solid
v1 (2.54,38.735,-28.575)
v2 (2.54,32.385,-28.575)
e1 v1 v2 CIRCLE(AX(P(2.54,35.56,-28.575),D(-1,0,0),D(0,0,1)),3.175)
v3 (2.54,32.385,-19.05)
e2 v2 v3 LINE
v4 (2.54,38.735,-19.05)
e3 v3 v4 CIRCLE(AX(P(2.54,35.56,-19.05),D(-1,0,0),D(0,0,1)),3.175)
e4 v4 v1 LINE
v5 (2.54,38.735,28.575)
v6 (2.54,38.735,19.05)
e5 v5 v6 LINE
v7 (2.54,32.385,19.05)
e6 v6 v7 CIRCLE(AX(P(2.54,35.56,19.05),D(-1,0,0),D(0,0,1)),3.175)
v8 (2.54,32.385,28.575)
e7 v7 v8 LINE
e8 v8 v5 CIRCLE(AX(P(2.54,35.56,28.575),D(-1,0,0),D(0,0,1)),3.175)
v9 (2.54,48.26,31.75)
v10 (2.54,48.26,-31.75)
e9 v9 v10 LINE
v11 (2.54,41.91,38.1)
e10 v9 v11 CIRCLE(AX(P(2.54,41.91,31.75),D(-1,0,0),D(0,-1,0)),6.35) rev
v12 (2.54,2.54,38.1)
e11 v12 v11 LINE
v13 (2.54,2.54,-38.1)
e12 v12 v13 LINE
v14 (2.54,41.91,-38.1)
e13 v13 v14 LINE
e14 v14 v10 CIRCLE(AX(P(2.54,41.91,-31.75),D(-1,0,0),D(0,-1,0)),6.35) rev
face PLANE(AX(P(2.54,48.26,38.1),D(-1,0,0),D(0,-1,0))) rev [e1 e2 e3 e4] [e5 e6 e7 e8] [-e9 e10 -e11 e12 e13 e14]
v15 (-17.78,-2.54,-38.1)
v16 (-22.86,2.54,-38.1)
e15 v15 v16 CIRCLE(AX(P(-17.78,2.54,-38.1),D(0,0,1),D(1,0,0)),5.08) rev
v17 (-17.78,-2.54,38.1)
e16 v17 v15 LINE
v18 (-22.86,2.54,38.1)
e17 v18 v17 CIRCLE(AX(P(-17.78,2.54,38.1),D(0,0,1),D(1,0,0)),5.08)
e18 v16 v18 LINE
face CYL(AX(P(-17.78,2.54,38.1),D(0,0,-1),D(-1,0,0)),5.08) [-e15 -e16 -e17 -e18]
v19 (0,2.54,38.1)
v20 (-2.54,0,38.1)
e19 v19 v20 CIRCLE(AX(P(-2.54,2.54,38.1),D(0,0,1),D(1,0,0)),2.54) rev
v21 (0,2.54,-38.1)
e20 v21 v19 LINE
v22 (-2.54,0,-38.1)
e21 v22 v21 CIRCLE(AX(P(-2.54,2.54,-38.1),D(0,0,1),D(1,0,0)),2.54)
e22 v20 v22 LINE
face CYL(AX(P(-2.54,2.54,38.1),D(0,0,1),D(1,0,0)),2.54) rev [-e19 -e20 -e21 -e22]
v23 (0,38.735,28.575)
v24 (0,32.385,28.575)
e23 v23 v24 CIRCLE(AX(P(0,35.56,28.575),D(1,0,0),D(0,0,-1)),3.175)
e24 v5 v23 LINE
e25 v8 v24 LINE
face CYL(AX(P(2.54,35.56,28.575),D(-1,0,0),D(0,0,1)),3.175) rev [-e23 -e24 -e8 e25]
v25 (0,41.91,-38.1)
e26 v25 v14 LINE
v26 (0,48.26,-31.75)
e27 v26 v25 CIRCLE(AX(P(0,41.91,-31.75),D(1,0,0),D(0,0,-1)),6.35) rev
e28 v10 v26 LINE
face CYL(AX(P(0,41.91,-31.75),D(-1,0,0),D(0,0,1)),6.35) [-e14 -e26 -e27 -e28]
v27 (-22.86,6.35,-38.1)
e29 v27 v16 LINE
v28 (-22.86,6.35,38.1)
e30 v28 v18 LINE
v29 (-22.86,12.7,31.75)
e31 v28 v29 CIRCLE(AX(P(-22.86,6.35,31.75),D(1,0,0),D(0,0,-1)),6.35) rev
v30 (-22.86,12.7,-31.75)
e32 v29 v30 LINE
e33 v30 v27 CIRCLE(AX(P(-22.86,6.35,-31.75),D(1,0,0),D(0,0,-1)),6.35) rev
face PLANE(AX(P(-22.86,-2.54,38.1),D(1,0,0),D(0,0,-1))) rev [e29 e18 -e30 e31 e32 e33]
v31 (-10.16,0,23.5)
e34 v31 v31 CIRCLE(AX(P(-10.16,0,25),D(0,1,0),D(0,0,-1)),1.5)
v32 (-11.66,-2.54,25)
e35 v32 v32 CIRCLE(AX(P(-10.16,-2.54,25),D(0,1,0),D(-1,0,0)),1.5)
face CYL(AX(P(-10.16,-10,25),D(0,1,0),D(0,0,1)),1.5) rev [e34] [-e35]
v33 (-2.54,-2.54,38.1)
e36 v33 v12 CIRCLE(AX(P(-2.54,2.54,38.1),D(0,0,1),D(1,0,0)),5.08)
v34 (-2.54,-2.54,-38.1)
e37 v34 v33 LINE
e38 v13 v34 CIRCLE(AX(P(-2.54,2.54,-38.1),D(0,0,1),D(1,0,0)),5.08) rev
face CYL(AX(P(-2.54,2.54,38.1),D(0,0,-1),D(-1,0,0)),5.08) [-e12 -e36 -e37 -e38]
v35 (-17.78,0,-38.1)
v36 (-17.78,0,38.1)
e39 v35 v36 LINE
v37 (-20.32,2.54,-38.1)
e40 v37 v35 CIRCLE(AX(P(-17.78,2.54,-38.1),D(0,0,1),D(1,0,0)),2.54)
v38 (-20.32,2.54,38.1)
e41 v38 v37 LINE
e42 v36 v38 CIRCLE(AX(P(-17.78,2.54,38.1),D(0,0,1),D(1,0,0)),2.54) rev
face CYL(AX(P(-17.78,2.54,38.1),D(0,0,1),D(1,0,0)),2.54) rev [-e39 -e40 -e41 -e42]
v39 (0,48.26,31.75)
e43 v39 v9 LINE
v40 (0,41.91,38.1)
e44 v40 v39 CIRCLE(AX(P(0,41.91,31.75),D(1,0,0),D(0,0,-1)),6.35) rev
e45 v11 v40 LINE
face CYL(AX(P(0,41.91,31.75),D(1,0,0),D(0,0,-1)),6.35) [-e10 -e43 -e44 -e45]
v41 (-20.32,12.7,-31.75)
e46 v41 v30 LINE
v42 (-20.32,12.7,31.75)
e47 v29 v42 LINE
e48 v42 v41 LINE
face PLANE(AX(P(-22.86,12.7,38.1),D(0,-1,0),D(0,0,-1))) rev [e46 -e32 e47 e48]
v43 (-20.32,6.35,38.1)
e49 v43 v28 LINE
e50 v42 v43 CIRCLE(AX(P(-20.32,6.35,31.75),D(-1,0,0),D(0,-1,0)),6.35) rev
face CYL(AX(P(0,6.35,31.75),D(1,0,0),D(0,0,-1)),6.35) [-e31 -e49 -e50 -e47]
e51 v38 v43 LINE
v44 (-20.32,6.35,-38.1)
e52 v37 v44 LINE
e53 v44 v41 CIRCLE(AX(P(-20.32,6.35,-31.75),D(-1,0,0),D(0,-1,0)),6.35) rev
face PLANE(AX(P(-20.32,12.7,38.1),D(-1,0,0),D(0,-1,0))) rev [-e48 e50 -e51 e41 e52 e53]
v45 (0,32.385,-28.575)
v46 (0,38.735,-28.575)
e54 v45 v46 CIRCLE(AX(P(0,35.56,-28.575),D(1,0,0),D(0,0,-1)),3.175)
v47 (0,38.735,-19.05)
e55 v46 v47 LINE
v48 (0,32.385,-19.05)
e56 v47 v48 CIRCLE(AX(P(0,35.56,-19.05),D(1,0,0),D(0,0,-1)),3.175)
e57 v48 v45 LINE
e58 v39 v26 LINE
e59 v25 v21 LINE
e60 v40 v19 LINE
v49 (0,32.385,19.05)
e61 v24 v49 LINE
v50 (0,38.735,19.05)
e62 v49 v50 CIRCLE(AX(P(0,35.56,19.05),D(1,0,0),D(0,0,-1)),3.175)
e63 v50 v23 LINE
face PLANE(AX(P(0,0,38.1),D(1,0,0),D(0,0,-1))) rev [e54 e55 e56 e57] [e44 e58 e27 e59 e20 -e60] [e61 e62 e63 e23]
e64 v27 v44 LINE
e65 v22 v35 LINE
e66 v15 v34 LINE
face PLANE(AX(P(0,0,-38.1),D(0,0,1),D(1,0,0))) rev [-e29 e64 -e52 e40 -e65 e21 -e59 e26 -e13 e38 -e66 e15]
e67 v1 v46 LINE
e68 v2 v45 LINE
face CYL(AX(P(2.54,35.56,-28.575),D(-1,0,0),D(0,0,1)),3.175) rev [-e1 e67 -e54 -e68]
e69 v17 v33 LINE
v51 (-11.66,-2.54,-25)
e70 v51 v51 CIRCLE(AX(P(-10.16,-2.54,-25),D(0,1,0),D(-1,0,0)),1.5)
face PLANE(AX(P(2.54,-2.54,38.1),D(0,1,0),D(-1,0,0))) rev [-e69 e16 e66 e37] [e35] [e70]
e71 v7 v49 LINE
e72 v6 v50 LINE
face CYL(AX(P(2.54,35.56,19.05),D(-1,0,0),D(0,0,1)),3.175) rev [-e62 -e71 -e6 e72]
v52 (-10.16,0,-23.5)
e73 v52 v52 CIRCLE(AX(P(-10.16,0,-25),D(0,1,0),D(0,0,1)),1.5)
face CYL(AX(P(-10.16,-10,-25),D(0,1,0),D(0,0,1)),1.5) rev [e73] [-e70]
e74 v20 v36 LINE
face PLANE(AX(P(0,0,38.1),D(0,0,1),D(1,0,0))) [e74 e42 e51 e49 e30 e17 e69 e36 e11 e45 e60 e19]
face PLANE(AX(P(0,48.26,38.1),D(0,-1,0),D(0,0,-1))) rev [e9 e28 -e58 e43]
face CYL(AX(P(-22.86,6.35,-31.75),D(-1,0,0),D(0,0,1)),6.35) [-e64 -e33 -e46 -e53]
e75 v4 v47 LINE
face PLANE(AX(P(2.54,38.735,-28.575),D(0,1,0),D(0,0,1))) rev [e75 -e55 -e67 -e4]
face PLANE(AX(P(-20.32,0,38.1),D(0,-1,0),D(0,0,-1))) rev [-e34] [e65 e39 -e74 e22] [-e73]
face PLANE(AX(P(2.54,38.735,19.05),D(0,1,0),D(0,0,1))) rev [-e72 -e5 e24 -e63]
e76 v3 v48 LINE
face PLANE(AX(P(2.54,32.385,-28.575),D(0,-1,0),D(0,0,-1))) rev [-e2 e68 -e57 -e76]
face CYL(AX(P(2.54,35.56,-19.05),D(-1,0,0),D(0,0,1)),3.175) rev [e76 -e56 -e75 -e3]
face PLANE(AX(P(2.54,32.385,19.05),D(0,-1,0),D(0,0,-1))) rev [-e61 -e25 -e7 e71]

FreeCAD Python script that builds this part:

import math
import FreeCAD as App
import Part
import Sketcher

V = App.Vector
Q = App.Units.Quantity


def edges_at(feature, points):
    """Names of the edges that pass closest to the given points."""
    edges = feature.Shape.Edges
    near = lambda p: min(range(len(edges)), key=lambda i: edges[i].distToShape(Part.Vertex(*p))[0])
    return sorted({f"Edge{near(p) + 1}" for p in points})

doc = App.newDocument("Part")
body = doc.addObject("PartDesign::Body", "Body")

# Sketch on XY plane
sketch1 = body.newObject("Sketcher::SketchObject", "Sketch")
sketch1.AttachmentSupport = (doc.getObject("XY_Plane"), [""])
sketch1.MapMode = "FlatFace"
sketch1.addGeometry(Part.LineSegment(V(0, 48.3, 0), V(0, 0, 0)), False)
sketch1.addGeometry(Part.LineSegment(V(0, 0, 0), V(-20.3, 0, 0)), False)
sketch1.addGeometry(Part.LineSegment(V(-20.3, 0, 0), V(-20.3, 12.7, 0)), False)
sketch1.addGeometry(Part.LineSegment(V(-20.3, 12.7, 0), V(-22.9, 12.7, 0)), False)
sketch1.addGeometry(Part.LineSegment(V(-22.9, 12.7, 0), V(-22.9, -2.5, 0)), False)
sketch1.addGeometry(Part.LineSegment(V(-22.9, -2.5, 0), V(2.5, -2.5, 0)), False)
sketch1.addGeometry(Part.LineSegment(V(2.5, -2.5, 0), V(2.5, 48.3, 0)), False)
sketch1.addGeometry(Part.LineSegment(V(2.5, 48.3, 0), V(0, 48.3, 0)), False)
sketch1.addConstraint(Sketcher.Constraint("Coincident", 0, 2, 1, 1))
sketch1.addConstraint(Sketcher.Constraint("Coincident", 1, 2, 2, 1))
sketch1.addConstraint(Sketcher.Constraint("Coincident", 2, 2, 3, 1))
sketch1.addConstraint(Sketcher.Constraint("Coincident", 3, 2, 4, 1))
sketch1.addConstraint(Sketcher.Constraint("Coincident", 4, 2, 5, 1))
sketch1.addConstraint(Sketcher.Constraint("Coincident", 5, 2, 6, 1))
sketch1.addConstraint(Sketcher.Constraint("Coincident", 6, 2, 7, 1))
sketch1.addConstraint(Sketcher.Constraint("Coincident", 7, 2, 0, 1))
sketch1.addConstraint(Sketcher.Constraint("Vertical", 0))
sketch1.addConstraint(Sketcher.Constraint("Horizontal", 1))
sketch1.addConstraint(Sketcher.Constraint("Vertical", 2))
sketch1.addConstraint(Sketcher.Constraint("Horizontal", 3))
sketch1.addConstraint(Sketcher.Constraint("Vertical", 4))
sketch1.addConstraint(Sketcher.Constraint("Horizontal", 5))
sketch1.addConstraint(Sketcher.Constraint("Vertical", 6))
sketch1.addConstraint(Sketcher.Constraint("Horizontal", 7))
sketch1.addConstraint(Sketcher.Constraint("Coincident", 0, 2, -1, 1))
sketch1.addConstraint(Sketcher.Constraint("Equal", 3, 7))
sketch1.addConstraint(Sketcher.Constraint("DistanceX", 5, 1, 5, 2, Q("1 in")))
sketch1.addConstraint(Sketcher.Constraint("DistanceY", 6, 1, 6, 2, Q("2 in")))
sketch1.addConstraint(Sketcher.Constraint("DistanceX", 1, 2, 1, 1, Q("0.8 in")))
sketch1.addConstraint(Sketcher.Constraint("DistanceY", 0, 2, 0, 1, Q("1.9 in")))
sketch1.addConstraint(Sketcher.Constraint("DistanceY", 2, 1, 2, 2, Q("0.5 in")))
pad1 = body.newObject("PartDesign::Pad", "Pad")
pad1.Profile = sketch1
pad1.Length = Q("3 in")
pad1.Midplane = True

# Sketch on YZ plane
sketch2 = body.newObject("Sketcher::SketchObject", "Sketch001")
sketch2.AttachmentSupport = (doc.getObject("YZ_Plane"), [""])
sketch2.MapMode = "FlatFace"
sketch2.addGeometry(Part.LineSegment(V(38.7, -19.1, 0), V(38.7, -28.6, 0)), False)
sketch2.addGeometry(Part.ArcOfCircle(Part.Circle(V(35.6, -28.6, 0), V(0, 0, 1), 3.2), math.radians(180), math.radians(360)), False)
sketch2.addGeometry(Part.LineSegment(V(32.4, -28.6, 0), V(32.4, -19.1, 0)), False)
sketch2.addGeometry(Part.ArcOfCircle(Part.Circle(V(35.6, -19.1, 0), V(0, 0, 1), 3.2), math.radians(0), math.radians(180)), False)
sketch2.addGeometry(Part.LineSegment(V(38.7, 28.6, 0), V(38.7, 19.1, 0)), False)
sketch2.addGeometry(Part.ArcOfCircle(Part.Circle(V(35.6, 19.1, 0), V(0, 0, 1), 3.2), math.radians(180), math.radians(360)), False)
sketch2.addGeometry(Part.LineSegment(V(32.4, 19.1, 0), V(32.4, 28.6, 0)), False)
sketch2.addGeometry(Part.ArcOfCircle(Part.Circle(V(35.6, 28.6, 0), V(0, 0, 1), 3.2), math.radians(0), math.radians(180)), False)
sketch2.addConstraint(Sketcher.Constraint("Tangent", 0, 2, 1, 2))
sketch2.addConstraint(Sketcher.Constraint("Tangent", 1, 1, 2, 1))
sketch2.addConstraint(Sketcher.Constraint("Tangent", 2, 2, 3, 2))
sketch2.addConstraint(Sketcher.Constraint("Tangent", 3, 1, 0, 1))
sketch2.addConstraint(Sketcher.Constraint("Tangent", 4, 2, 5, 2))
sketch2.addConstraint(Sketcher.Constraint("Tangent", 5, 1, 6, 1))
sketch2.addConstraint(Sketcher.Constraint("Tangent", 6, 2, 7, 2))
sketch2.addConstraint(Sketcher.Constraint("Tangent", 7, 1, 4, 1))
sketch2.addConstraint(Sketcher.Constraint("Vertical", 0))
sketch2.addConstraint(Sketcher.Constraint("Vertical", 2))
sketch2.addConstraint(Sketcher.Constraint("Vertical", 4))
sketch2.addConstraint(Sketcher.Constraint("Vertical", 6))
sketch2.addConstraint(Sketcher.Constraint("Equal", 3, 5))
sketch2.addConstraint(Sketcher.Constraint("Symmetric", 3, 3, 5, 3, -1))
sketch2.addConstraint(Sketcher.Constraint("Equal", 2, 4))
sketch2.addConstraint(Sketcher.Constraint("Radius", 1, Q("0.125 in")))
sketch2.addConstraint(Sketcher.Constraint("DistanceX", -1, 1, 1, 3, Q("1.4 in")))
sketch2.addConstraint(Sketcher.Constraint("DistanceY", 3, 3, 5, 3, Q("1.5 in")))
sketch2.addConstraint(Sketcher.Constraint("DistanceY", 0, 2, 0, 1, Q("0.375 in")))
pocket1 = body.newObject("PartDesign::Pocket", "Pocket")
pocket1.Profile = sketch2
pocket1.Type = "ThroughAll"
pocket1.Midplane = True
doc.recompute()

fillet = body.newObject("PartDesign::Fillet", "Fillet")
fillet.Base = (pocket1, edges_at(pocket1, [
    (-21.59, 12.7, 38.1),
    (-21.59, 12.7, -38.1),
    (1.27, 48.26, 38.1),
    (1.27, 48.26, -38.1),
]))
fillet.Radius = Q("0.25 in")
doc.recompute()

fillet2 = body.newObject("PartDesign::Fillet", "Fillet001")
fillet2.Base = (fillet, edges_at(fillet, [(0, 0, 0), (-20.32, 0, 0)]))
fillet2.Radius = Q("0.1 in")
doc.recompute()

fillet3 = body.newObject("PartDesign::Fillet", "Fillet002")
fillet3.Base = (fillet2, edges_at(fillet2, [(2.54, -2.54, 0), (-22.86, -2.54, 0)]))
fillet3.Radius = Q("0.2 in")

# Sketch on XZ plane
sketch3 = body.newObject("Sketcher::SketchObject", "Sketch002")
sketch3.AttachmentSupport = (doc.getObject("XZ_Plane"), [""])
sketch3.MapMode = "FlatFace"
sketch3.addGeometry(Part.Circle(V(-10.2, -25, 0), V(0, 0, 1), 1.5), False)
sketch3.addGeometry(Part.Circle(V(-10.2, 25, 0), V(0, 0, 1), 1.5), False)
sketch3.addConstraint(Sketcher.Constraint("Equal", 0, 1))
sketch3.addConstraint(Sketcher.Constraint("Symmetric", 0, 3, 1, 3, -1))
sketch3.addConstraint(Sketcher.Constraint("DistanceX", 0, 3, -1, 1, Q("0.4 in")))
sketch3.addConstraint(Sketcher.Constraint("Diameter", 0, 3.0))
sketch3.addConstraint(Sketcher.Constraint("DistanceY", 0, 3, -1, 1, 25.0))
pocket2 = body.newObject("PartDesign::Pocket", "Pocket001")
pocket2.Profile = sketch3
pocket2.Length = 10
pocket2.Reversed = True

doc.recompute()
